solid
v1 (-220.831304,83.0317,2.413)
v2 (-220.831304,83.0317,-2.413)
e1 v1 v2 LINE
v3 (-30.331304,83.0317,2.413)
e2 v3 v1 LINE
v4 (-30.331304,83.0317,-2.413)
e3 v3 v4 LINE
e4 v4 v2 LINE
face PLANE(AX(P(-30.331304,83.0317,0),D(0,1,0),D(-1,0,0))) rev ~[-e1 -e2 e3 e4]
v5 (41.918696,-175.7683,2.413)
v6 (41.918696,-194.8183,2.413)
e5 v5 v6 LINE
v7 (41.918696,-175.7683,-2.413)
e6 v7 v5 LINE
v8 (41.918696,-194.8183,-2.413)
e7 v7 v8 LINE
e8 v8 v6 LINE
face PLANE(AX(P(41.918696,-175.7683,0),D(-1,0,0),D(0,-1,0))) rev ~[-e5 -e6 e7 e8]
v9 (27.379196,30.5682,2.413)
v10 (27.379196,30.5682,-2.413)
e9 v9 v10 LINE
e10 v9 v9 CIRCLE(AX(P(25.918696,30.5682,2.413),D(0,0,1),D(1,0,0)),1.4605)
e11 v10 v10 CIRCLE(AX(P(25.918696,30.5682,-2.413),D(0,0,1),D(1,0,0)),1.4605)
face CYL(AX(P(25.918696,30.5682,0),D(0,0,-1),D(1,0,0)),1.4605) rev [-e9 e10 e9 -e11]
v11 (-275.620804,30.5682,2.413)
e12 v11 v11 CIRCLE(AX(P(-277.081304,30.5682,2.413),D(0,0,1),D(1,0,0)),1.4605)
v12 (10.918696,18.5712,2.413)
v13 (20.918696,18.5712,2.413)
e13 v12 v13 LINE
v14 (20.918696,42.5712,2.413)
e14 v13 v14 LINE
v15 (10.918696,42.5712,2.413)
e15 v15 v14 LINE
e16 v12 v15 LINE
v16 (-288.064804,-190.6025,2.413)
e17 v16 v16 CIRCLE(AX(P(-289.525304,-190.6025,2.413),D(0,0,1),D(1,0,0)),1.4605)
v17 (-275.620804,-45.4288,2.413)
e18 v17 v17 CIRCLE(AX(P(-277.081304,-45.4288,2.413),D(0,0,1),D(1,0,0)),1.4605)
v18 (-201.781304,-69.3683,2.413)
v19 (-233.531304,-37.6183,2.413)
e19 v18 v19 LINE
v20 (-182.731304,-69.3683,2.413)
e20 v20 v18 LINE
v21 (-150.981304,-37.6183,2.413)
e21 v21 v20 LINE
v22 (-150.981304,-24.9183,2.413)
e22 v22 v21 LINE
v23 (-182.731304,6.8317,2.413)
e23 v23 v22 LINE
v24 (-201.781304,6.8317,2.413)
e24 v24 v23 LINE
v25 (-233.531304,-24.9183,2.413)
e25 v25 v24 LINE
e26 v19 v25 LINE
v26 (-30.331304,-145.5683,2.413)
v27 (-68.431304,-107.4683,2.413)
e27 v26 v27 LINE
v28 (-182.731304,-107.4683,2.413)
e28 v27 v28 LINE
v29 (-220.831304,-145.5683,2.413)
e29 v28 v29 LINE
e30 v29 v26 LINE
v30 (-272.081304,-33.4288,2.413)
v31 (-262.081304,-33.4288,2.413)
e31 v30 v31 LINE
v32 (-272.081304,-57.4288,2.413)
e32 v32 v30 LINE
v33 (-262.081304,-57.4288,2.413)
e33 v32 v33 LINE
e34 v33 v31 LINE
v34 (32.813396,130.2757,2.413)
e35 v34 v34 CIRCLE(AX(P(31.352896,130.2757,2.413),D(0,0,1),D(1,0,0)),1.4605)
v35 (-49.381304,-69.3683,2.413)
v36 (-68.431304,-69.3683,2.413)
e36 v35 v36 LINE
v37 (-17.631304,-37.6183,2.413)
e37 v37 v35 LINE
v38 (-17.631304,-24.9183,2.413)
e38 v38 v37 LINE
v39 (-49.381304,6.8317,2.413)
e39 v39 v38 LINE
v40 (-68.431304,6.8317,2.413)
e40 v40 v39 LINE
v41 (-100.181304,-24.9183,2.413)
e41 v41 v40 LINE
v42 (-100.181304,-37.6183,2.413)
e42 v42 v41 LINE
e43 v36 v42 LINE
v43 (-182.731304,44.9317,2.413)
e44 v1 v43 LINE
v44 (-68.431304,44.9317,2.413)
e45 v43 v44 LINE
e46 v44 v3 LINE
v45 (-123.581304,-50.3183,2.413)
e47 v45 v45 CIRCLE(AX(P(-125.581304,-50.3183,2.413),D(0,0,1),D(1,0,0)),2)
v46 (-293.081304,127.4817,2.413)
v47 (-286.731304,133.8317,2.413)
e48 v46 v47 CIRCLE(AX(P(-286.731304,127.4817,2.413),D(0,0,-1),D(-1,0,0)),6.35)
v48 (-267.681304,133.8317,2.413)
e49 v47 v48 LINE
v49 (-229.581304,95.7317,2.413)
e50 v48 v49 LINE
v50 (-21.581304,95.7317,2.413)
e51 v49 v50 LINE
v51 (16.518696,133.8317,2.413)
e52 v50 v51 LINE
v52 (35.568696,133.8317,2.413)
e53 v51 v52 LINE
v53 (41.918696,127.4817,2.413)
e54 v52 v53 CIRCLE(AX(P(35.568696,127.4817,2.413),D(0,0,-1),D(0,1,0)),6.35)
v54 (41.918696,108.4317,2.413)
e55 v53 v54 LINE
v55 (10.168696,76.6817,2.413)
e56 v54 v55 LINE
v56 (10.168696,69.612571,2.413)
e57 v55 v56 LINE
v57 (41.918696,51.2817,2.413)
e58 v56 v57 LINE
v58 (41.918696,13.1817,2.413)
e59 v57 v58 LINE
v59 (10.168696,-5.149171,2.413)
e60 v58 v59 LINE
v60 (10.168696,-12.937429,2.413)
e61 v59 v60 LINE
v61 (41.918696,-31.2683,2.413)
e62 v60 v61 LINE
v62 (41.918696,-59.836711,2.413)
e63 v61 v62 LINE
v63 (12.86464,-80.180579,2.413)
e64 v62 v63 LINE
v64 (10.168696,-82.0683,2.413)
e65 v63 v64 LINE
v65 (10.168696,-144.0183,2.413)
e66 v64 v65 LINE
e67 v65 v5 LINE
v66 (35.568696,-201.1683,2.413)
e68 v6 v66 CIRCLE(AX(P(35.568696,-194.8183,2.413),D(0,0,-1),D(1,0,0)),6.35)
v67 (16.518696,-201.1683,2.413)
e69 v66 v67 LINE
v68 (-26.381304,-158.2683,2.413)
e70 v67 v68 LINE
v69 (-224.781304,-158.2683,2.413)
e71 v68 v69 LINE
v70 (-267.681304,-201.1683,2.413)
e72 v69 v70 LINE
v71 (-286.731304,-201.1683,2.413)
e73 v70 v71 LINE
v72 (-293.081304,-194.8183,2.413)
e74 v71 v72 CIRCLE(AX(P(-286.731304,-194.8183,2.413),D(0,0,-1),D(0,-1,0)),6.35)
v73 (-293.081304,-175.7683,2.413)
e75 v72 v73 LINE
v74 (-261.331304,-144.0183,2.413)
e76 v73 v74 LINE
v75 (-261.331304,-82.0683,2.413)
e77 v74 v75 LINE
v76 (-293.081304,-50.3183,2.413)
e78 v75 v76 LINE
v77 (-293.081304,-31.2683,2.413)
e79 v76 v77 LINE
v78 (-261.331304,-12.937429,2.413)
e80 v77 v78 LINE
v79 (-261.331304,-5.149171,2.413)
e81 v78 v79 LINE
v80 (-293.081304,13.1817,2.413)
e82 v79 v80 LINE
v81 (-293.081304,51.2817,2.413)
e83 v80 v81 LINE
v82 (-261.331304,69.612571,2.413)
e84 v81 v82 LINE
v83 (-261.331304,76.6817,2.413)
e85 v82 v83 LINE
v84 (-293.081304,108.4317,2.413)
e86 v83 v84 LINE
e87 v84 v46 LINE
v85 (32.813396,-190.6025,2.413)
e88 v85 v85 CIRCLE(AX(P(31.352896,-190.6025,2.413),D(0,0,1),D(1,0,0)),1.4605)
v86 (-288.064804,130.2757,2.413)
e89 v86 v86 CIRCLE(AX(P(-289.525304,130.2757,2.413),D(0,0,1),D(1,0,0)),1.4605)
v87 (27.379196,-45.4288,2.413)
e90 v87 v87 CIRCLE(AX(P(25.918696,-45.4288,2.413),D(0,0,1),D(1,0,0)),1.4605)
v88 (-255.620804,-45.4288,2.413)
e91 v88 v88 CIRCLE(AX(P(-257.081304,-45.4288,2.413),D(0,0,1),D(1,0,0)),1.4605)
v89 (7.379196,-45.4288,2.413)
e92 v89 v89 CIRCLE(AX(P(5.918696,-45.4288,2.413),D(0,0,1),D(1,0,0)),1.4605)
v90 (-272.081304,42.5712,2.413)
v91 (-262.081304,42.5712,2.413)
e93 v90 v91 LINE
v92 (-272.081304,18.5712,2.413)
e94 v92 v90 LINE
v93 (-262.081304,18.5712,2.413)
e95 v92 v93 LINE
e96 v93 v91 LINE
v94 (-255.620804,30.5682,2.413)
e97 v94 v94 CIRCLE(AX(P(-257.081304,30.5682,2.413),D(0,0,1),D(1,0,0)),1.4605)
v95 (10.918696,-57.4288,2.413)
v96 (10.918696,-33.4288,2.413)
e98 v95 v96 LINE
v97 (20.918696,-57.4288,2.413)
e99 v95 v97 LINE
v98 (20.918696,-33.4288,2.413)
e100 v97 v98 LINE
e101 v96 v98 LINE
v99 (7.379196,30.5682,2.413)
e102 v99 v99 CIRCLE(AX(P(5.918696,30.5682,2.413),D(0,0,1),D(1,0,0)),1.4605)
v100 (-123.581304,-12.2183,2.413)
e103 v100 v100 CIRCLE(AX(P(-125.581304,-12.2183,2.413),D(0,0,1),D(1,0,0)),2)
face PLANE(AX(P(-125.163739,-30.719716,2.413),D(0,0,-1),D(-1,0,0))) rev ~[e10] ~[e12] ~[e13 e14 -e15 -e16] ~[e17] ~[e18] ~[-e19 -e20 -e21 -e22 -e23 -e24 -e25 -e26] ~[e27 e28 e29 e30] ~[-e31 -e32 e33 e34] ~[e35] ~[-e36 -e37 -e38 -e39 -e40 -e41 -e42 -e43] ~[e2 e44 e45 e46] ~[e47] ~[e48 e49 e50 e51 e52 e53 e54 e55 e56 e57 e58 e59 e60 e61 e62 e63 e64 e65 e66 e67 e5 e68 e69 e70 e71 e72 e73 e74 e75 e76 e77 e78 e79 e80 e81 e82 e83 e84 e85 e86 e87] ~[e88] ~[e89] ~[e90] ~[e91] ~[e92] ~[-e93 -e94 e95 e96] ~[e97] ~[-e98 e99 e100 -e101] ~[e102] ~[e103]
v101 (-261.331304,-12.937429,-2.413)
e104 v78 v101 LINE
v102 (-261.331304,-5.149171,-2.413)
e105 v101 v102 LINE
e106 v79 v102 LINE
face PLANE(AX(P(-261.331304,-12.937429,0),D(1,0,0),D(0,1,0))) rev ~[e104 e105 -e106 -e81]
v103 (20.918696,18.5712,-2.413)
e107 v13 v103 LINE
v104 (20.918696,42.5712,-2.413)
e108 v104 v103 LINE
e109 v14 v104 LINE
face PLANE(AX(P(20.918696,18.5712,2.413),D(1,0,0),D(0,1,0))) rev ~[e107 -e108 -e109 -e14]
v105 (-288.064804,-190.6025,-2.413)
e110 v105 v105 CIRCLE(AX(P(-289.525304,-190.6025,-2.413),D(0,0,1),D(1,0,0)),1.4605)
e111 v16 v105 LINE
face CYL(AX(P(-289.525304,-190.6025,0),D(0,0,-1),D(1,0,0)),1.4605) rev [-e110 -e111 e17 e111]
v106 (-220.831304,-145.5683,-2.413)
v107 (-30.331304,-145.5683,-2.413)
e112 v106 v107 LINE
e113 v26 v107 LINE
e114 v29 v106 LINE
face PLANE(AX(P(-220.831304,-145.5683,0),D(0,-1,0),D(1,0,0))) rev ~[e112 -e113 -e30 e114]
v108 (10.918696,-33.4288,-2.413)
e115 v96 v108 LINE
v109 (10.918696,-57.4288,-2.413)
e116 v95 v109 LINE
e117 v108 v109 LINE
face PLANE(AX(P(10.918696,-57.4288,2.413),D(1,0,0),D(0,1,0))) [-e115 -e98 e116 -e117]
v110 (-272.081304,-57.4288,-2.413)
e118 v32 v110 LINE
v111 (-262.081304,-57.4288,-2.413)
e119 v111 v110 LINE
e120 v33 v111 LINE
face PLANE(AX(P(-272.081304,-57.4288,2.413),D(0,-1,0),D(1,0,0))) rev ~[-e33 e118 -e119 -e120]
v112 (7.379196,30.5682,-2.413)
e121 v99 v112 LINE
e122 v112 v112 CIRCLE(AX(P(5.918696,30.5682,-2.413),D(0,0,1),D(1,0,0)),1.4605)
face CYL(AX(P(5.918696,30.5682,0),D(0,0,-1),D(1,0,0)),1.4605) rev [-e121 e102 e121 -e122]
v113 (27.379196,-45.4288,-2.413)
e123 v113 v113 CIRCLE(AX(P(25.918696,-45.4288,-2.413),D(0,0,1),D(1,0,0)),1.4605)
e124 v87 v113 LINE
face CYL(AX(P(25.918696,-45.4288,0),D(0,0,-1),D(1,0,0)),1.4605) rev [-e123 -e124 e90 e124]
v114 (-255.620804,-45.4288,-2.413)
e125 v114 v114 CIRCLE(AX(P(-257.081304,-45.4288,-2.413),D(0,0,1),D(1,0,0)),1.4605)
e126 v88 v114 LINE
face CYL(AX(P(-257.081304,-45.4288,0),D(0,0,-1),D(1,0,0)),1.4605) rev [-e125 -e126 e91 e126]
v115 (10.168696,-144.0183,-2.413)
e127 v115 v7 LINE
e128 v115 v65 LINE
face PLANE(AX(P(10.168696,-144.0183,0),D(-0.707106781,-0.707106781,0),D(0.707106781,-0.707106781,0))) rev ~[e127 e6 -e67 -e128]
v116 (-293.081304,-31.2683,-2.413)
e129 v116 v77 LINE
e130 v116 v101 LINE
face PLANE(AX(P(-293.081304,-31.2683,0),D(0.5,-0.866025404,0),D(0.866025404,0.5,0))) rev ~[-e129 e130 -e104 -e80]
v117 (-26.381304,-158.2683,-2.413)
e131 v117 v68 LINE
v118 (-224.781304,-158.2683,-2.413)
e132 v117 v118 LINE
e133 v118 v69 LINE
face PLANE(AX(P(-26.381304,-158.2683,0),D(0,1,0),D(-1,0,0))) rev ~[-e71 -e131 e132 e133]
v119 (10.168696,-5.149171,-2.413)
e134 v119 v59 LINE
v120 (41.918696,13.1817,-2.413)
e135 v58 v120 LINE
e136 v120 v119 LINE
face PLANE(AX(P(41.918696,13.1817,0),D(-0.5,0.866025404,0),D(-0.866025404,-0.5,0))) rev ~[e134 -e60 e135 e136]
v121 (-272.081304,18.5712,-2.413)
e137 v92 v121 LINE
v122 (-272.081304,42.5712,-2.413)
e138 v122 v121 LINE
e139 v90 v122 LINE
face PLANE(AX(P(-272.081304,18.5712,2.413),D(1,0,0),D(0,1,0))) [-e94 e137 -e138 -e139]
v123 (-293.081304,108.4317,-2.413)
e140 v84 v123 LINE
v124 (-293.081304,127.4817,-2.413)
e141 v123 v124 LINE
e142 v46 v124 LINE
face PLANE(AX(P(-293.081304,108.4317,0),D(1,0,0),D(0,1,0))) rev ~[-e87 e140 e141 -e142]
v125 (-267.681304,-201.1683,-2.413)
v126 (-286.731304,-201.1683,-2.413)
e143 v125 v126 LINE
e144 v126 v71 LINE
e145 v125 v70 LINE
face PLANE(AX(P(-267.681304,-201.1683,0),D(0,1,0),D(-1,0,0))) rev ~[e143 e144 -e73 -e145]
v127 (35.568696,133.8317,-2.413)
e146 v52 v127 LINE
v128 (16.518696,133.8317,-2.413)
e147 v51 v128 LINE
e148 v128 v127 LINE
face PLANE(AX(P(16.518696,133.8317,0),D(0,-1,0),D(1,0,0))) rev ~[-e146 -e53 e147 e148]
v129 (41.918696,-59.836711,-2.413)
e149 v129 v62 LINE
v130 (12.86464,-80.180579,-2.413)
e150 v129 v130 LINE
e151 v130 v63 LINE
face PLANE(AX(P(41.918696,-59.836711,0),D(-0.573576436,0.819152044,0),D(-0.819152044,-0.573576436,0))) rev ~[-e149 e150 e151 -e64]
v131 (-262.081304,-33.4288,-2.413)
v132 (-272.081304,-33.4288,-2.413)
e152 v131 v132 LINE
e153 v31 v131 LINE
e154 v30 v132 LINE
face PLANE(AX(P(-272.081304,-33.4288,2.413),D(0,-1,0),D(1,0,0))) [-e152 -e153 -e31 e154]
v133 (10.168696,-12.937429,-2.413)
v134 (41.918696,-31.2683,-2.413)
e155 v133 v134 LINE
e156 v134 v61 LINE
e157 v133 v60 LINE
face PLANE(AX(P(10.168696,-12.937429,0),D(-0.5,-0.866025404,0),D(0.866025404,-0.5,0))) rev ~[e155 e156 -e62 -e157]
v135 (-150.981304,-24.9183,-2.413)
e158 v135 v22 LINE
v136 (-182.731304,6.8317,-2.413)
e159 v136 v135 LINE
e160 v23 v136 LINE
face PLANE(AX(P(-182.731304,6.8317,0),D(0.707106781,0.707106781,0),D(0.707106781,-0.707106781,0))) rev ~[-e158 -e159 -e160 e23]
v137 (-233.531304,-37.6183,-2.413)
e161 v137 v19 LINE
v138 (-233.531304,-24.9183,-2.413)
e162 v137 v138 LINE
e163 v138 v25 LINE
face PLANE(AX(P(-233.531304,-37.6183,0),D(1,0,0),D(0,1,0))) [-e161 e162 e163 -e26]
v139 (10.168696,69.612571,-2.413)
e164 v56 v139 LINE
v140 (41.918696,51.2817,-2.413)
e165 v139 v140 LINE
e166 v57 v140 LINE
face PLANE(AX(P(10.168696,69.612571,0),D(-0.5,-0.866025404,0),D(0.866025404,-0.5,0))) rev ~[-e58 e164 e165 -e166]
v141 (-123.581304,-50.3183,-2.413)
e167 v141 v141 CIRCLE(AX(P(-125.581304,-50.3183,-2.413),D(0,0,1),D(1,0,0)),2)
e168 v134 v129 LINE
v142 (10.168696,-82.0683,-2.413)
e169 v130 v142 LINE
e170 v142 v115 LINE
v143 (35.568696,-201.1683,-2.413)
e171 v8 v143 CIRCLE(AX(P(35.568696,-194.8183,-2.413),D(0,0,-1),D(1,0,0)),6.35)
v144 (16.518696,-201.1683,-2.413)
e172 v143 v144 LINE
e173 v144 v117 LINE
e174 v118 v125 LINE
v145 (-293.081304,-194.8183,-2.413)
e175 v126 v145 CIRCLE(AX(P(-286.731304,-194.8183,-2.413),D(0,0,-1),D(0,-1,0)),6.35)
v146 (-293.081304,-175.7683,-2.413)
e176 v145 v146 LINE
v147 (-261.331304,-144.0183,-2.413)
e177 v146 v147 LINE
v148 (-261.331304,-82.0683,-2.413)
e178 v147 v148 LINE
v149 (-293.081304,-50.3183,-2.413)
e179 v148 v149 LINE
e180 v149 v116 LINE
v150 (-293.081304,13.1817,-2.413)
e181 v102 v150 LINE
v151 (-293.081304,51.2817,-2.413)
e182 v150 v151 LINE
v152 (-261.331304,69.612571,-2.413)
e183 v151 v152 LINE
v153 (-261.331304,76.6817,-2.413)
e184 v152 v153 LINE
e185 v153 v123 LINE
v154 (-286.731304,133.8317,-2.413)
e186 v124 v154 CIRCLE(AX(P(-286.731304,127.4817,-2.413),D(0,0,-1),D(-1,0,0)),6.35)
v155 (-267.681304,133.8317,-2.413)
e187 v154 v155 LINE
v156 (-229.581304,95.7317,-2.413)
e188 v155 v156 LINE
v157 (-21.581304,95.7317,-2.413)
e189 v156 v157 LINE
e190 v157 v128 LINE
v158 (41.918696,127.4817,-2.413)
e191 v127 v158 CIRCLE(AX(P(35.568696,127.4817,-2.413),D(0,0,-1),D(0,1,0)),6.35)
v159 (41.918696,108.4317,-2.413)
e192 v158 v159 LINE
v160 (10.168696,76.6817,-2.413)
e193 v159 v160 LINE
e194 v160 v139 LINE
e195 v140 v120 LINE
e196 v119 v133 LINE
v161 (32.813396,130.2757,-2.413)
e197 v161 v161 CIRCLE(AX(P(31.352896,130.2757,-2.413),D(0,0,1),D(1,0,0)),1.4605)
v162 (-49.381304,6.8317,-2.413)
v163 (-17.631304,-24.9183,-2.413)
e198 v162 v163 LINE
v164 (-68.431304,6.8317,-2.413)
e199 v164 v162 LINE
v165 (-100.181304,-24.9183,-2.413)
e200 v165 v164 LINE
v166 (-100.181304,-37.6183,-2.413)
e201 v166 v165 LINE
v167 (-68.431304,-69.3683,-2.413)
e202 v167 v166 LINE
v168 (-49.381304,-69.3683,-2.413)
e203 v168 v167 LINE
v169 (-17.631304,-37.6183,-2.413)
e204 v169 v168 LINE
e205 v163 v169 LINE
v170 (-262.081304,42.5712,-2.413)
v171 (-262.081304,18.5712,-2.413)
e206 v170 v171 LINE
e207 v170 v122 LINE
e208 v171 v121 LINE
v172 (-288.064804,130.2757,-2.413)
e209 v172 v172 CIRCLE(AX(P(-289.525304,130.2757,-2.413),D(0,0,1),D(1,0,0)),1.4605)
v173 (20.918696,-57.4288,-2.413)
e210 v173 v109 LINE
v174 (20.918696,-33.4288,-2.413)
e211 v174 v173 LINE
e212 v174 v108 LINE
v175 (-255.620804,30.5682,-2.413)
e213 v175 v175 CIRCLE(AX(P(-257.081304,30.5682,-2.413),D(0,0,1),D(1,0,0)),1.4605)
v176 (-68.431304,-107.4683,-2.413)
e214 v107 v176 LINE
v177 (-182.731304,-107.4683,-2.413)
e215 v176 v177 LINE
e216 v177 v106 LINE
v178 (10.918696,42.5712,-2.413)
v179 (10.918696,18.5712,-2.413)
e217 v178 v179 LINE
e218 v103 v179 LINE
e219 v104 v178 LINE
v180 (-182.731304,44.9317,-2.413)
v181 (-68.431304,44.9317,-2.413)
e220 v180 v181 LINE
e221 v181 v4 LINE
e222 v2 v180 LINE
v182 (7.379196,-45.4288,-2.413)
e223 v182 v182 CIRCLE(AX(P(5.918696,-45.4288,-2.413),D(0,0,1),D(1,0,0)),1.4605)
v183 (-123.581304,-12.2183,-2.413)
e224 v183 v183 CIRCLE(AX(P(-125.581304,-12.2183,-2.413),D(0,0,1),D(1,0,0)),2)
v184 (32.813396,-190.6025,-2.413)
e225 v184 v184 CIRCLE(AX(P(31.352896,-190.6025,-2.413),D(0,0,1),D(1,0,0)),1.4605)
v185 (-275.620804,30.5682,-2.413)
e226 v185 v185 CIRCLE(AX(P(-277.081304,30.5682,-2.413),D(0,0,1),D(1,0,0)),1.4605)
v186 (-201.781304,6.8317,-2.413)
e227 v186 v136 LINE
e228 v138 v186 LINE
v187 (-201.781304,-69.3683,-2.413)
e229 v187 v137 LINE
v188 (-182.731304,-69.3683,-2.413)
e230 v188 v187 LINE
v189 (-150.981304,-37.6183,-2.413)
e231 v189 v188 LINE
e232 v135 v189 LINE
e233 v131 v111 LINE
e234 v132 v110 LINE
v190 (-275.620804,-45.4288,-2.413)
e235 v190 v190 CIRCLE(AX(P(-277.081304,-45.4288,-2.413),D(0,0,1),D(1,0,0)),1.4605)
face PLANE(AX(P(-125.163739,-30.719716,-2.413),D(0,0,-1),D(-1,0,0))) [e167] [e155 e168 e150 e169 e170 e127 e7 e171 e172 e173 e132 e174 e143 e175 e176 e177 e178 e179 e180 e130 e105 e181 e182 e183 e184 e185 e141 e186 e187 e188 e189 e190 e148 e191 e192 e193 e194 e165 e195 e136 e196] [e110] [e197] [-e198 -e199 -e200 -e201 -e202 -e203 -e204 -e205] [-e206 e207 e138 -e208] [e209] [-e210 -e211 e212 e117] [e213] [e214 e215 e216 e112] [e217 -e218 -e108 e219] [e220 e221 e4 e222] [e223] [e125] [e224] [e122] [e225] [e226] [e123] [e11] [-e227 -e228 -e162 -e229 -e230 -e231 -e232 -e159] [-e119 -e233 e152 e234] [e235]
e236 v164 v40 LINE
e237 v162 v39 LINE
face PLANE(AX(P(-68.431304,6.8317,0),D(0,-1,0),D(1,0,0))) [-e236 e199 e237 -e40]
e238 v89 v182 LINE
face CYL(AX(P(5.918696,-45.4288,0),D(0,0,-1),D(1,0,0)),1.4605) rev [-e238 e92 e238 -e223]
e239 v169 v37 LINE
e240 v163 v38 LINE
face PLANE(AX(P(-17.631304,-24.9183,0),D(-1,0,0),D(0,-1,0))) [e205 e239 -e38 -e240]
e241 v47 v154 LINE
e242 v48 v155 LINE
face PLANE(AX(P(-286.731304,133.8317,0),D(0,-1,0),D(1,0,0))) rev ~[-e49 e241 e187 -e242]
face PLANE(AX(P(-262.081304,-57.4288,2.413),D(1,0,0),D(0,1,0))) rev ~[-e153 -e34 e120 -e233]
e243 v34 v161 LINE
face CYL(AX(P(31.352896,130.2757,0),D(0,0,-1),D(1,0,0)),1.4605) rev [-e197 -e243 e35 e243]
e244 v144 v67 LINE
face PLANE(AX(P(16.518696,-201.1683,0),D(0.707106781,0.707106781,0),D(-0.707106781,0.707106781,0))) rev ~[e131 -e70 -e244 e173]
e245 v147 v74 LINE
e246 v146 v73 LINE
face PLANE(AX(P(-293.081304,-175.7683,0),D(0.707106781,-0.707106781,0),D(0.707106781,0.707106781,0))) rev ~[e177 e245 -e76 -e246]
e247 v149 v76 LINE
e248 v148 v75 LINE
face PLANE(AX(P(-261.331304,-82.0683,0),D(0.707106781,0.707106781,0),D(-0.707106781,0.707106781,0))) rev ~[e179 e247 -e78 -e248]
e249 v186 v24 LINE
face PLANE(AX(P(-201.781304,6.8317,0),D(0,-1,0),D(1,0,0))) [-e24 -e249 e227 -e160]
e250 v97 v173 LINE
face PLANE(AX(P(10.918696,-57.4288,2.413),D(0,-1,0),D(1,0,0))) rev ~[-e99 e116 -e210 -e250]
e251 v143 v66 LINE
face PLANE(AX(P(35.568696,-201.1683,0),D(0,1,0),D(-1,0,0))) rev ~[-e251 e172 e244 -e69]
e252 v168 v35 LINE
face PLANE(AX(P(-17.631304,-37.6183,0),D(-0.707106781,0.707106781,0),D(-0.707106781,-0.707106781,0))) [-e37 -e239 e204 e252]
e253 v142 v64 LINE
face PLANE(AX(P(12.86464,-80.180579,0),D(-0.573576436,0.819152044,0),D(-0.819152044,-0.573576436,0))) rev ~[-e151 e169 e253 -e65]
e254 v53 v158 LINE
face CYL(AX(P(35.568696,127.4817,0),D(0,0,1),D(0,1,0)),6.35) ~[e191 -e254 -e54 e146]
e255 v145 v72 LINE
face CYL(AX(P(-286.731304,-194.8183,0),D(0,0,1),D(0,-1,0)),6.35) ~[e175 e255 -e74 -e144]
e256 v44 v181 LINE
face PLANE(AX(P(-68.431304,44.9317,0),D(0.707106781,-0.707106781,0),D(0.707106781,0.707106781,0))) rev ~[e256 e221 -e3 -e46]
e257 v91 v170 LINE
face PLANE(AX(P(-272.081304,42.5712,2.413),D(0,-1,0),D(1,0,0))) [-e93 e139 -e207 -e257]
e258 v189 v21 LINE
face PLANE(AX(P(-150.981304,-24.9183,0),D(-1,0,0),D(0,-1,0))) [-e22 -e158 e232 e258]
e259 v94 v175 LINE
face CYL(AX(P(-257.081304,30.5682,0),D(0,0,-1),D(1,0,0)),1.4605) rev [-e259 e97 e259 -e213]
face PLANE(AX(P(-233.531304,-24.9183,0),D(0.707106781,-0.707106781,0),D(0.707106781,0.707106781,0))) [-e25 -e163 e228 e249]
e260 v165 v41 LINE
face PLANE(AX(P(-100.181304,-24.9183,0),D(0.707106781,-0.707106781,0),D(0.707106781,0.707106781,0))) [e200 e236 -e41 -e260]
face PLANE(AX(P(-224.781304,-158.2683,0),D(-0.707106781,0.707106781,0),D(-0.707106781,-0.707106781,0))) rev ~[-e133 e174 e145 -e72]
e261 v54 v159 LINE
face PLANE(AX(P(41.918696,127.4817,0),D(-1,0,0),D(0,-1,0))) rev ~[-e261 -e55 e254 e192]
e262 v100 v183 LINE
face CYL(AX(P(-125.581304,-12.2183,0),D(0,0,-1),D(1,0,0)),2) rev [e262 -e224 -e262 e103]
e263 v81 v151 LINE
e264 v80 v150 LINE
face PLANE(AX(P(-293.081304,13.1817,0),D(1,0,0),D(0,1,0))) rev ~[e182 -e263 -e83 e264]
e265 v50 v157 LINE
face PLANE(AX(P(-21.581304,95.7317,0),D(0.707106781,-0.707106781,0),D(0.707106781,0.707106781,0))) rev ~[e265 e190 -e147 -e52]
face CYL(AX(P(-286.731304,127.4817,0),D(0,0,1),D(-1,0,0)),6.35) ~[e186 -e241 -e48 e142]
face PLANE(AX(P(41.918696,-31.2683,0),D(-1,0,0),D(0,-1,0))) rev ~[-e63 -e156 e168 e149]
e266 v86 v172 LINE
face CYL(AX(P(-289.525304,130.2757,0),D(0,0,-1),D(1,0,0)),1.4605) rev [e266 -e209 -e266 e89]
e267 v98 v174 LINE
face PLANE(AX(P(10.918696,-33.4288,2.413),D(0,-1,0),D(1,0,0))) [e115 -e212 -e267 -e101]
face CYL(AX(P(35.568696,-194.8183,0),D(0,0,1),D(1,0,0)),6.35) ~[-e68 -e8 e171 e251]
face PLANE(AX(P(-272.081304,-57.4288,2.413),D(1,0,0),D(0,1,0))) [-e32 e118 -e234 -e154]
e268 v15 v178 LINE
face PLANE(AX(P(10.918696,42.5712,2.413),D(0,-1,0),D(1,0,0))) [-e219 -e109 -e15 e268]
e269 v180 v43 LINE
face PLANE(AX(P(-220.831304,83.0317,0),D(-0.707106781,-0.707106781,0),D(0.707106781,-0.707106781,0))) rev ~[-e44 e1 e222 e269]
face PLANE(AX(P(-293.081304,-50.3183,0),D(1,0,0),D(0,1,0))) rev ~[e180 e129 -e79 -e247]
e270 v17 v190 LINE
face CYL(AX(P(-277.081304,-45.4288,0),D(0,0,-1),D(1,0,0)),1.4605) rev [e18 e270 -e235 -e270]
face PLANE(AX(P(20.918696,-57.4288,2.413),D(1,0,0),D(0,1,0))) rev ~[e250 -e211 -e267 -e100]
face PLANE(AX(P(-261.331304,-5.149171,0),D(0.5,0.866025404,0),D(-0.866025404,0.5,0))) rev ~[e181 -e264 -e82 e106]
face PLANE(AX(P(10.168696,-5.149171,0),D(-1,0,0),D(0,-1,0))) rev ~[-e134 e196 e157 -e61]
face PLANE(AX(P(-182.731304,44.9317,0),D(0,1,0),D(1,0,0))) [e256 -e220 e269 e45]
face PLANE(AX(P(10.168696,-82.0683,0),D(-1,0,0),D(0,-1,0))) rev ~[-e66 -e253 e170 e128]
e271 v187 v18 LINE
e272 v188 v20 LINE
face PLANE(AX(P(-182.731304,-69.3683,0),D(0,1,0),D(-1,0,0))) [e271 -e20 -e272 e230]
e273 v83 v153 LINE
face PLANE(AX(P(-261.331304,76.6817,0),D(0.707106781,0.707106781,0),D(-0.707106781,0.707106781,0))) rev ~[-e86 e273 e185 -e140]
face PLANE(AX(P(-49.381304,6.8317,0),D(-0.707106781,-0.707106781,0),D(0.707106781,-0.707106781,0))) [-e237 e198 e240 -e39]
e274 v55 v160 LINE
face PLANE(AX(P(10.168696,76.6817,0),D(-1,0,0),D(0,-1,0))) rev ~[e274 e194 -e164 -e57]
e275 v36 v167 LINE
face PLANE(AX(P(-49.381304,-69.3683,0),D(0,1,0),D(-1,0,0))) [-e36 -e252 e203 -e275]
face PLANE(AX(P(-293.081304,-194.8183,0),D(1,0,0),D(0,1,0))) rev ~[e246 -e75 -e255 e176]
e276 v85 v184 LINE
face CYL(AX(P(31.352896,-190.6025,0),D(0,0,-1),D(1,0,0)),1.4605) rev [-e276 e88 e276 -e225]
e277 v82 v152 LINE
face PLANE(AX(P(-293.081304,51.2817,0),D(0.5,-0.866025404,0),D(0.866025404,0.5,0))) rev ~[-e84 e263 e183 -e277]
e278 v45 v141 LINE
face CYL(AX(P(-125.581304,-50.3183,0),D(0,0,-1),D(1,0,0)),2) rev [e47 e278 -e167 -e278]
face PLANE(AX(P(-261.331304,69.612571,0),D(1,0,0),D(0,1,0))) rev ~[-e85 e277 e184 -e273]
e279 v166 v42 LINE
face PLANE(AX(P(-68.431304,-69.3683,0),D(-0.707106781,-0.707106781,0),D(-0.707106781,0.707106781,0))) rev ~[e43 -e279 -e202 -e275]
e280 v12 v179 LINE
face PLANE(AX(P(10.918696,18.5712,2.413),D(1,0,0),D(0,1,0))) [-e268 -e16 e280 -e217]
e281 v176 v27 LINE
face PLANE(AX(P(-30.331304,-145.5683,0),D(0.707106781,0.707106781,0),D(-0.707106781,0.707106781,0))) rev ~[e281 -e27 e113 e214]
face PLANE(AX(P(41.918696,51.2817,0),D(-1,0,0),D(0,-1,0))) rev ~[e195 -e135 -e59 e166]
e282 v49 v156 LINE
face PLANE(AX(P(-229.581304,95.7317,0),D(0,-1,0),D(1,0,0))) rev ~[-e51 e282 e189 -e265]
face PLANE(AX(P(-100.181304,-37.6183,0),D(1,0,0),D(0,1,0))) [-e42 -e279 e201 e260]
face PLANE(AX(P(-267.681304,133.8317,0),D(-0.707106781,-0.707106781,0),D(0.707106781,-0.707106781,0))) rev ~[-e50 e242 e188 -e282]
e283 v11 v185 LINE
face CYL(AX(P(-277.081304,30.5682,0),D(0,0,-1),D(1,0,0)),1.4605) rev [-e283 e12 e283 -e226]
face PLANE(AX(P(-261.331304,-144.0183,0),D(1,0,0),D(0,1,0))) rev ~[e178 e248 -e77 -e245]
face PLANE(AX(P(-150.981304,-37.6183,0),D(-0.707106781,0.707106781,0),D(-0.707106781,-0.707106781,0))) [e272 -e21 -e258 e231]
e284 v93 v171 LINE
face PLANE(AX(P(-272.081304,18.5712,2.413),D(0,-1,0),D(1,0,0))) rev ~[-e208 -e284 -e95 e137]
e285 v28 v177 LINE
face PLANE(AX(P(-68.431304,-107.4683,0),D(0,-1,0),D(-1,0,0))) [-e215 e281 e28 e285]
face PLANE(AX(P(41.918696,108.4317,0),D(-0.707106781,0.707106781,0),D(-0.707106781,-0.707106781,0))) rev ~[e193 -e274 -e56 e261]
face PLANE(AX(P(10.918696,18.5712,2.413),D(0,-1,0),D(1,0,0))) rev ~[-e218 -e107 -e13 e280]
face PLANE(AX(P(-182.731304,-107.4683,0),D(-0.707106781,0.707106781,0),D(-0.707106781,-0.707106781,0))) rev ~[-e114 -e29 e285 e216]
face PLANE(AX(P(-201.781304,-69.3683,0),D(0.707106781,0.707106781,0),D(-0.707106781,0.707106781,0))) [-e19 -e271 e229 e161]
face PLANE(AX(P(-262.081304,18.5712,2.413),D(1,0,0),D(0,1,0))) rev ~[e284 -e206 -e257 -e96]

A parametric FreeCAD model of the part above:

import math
import FreeCAD as App
import Part
import Sketcher

V = App.Vector
Q = App.Units.Quantity

doc = App.newDocument("Part")
body = doc.addObject("PartDesign::Body", "Body")

sketch1 = body.newObject("Sketcher::SketchObject", "Sketch")
sketch1.AttachmentSupport = (doc.getObject("XY_Plane"), [""])
sketch1.MapMode = "FlatFace"
sketch1.addGeometry([
    Part.LineSegment(V(-261.331304, -12.937429, 0), V(-293.081304, -31.2683, 0)),
    Part.LineSegment(V(-293.081304, -31.2683, 0), V(-293.081304, -50.3183, 0)),
    Part.LineSegment(V(-293.081304, -50.3183, 0), V(-261.331304, -82.0683, 0)),
    Part.LineSegment(V(-261.331304, -82.0683, 0), V(-261.331304, -144.0183, 0)),
    Part.LineSegment(V(-261.331304, -144.0183, 0), V(-293.081304, -175.7683, 0)),
    Part.LineSegment(V(-293.081304, -175.7683, 0), V(-293.081304, -194.8183, 0)),
    Part.ArcOfCircle(Part.Circle(V(-286.731304, -194.8183, 0), V(0, 0, 1), 6.35), math.radians(180), math.radians(270)),
    Part.LineSegment(V(-286.731304, -201.1683, 0), V(-267.681304, -201.1683, 0)),
    Part.LineSegment(V(-267.681304, -201.1683, 0), V(-224.781304, -158.2683, 0)),
    Part.LineSegment(V(-224.781304, -158.2683, 0), V(-26.381304, -158.2683, 0)),
    Part.LineSegment(V(-26.381304, -158.2683, 0), V(16.518696, -201.1683, 0)),
    Part.LineSegment(V(16.518696, -201.1683, 0), V(35.568696, -201.1683, 0)),
    Part.ArcOfCircle(Part.Circle(V(35.568696, -194.8183, 0), V(0, 0, 1), 6.35), math.radians(-90), math.radians(0)),
    Part.LineSegment(V(41.918696, -194.8183, 0), V(41.918696, -175.7683, 0)),
    Part.LineSegment(V(41.918696, -175.7683, 0), V(10.168696, -144.0183, 0)),
    Part.LineSegment(V(10.168696, -144.0183, 0), V(10.168696, -82.0683, 0)),
    Part.LineSegment(V(10.168696, -82.0683, 0), V(12.86464, -80.180579, 0)),
    Part.LineSegment(V(12.86464, -80.180579, 0), V(41.918696, -59.836711, 0)),
    Part.LineSegment(V(41.918696, -59.836711, 0), V(41.918696, -31.2683, 0)),
    Part.LineSegment(V(41.918696, -31.2683, 0), V(10.168696, -12.937429, 0)),
    Part.LineSegment(V(10.168696, -12.937429, 0), V(10.168696, -5.149171, 0)),
    Part.LineSegment(V(10.168696, -5.149171, 0), V(41.918696, 13.1817, 0)),
    Part.LineSegment(V(41.918696, 13.1817, 0), V(41.918696, 51.2817, 0)),
    Part.LineSegment(V(41.918696, 51.2817, 0), V(10.168696, 69.612571, 0)),
    Part.LineSegment(V(10.168696, 69.612571, 0), V(10.168696, 76.6817, 0)),
    Part.LineSegment(V(10.168696, 76.6817, 0), V(41.918696, 108.4317, 0)),
    Part.LineSegment(V(41.918696, 108.4317, 0), V(41.918696, 127.4817, 0)),
    Part.ArcOfCircle(Part.Circle(V(35.568696, 127.4817, 0), V(0, 0, 1), 6.35), math.radians(0), math.radians(90)),
    Part.LineSegment(V(35.568696, 133.8317, 0), V(16.518696, 133.8317, 0)),
    Part.LineSegment(V(16.518696, 133.8317, 0), V(-21.581304, 95.7317, 0)),
    Part.LineSegment(V(-21.581304, 95.7317, 0), V(-229.581304, 95.7317, 0)),
    Part.LineSegment(V(-229.581304, 95.7317, 0), V(-267.681304, 133.8317, 0)),
    Part.LineSegment(V(-267.681304, 133.8317, 0), V(-286.731304, 133.8317, 0)),
    Part.ArcOfCircle(Part.Circle(V(-286.731304, 127.4817, 0), V(0, 0, 1), 6.35), math.radians(90), math.radians(180)),
    Part.LineSegment(V(-293.081304, 127.4817, 0), V(-293.081304, 108.4317, 0)),
    Part.LineSegment(V(-293.081304, 108.4317, 0), V(-261.331304, 76.6817, 0)),
    Part.LineSegment(V(-261.331304, 76.6817, 0), V(-261.331304, 69.612571, 0)),
    Part.LineSegment(V(-261.331304, 69.612571, 0), V(-293.081304, 51.2817, 0)),
    Part.LineSegment(V(-293.081304, 51.2817, 0), V(-293.081304, 13.1817, 0)),
    Part.LineSegment(V(-293.081304, 13.1817, 0), V(-261.331304, -5.149171, 0)),
    Part.LineSegment(V(-261.331304, -5.149171, 0), V(-261.331304, -12.937429, 0)),
    Part.Circle(V(31.352896, -190.6025, 0), V(0, 0, 1), 1.4605),
    Part.LineSegment(V(-30.331304, -145.5683, 0), V(-220.831304, -145.5683, 0)),
    Part.LineSegment(V(-220.831304, -145.5683, 0), V(-182.731304, -107.4683, 0)),
    Part.LineSegment(V(-182.731304, -107.4683, 0), V(-68.431304, -107.4683, 0)),
    Part.LineSegment(V(-68.431304, -107.4683, 0), V(-30.331304, -145.5683, 0)),
    Part.Circle(V(25.918696, -45.4288, 0), V(0, 0, 1), 1.4605),
    Part.Circle(V(5.918696, -45.4288, 0), V(0, 0, 1), 1.4605),
    Part.LineSegment(V(-100.181304, -37.6183, 0), V(-100.181304, -24.9183, 0)),
    Part.LineSegment(V(-100.181304, -24.9183, 0), V(-68.431304, 6.8317, 0)),
    Part.LineSegment(V(-68.431304, 6.8317, 0), V(-49.381304, 6.8317, 0)),
    Part.LineSegment(V(-49.381304, 6.8317, 0), V(-17.631304, -24.9183, 0)),
    Part.LineSegment(V(-17.631304, -24.9183, 0), V(-17.631304, -37.6183, 0)),
    Part.LineSegment(V(-17.631304, -37.6183, 0), V(-49.381304, -69.3683, 0)),
    Part.LineSegment(V(-49.381304, -69.3683, 0), V(-68.431304, -69.3683, 0)),
    Part.LineSegment(V(-68.431304, -69.3683, 0), V(-100.181304, -37.6183, 0)),
    Part.Circle(V(-125.581304, -50.3183, 0), V(0, 0, 1), 2),
    Part.Circle(V(-289.525304, -190.6025, 0), V(0, 0, 1), 1.4605),
    Part.LineSegment(V(-201.781304, -69.3683, 0), V(-233.531304, -37.6183, 0)),
    Part.LineSegment(V(-233.531304, -37.6183, 0), V(-233.531304, -24.9183, 0)),
    Part.LineSegment(V(-233.531304, -24.9183, 0), V(-201.781304, 6.8317, 0)),
    Part.LineSegment(V(-201.781304, 6.8317, 0), V(-182.731304, 6.8317, 0)),
    Part.LineSegment(V(-182.731304, 6.8317, 0), V(-150.981304, -24.9183, 0)),
    Part.LineSegment(V(-150.981304, -24.9183, 0), V(-150.981304, -37.6183, 0)),
    Part.LineSegment(V(-150.981304, -37.6183, 0), V(-182.731304, -69.3683, 0)),
    Part.LineSegment(V(-182.731304, -69.3683, 0), V(-201.781304, -69.3683, 0)),
    Part.Circle(V(-257.081304, -45.4288, 0), V(0, 0, 1), 1.4605),
    Part.Circle(V(-277.081304, -45.4288, 0), V(0, 0, 1), 1.4605),
    Part.Circle(V(25.918696, 30.5682, 0), V(0, 0, 1), 1.4605),
    Part.Circle(V(5.918696, 30.5682, 0), V(0, 0, 1), 1.4605),
    Part.Circle(V(-125.581304, -12.2183, 0), V(0, 0, 1), 2),
    Part.Circle(V(31.352896, 130.2757, 0), V(0, 0, 1), 1.4605),
    Part.LineSegment(V(-220.831304, 83.0317, 0), V(-30.331304, 83.0317, 0)),
    Part.LineSegment(V(-30.331304, 83.0317, 0), V(-68.431304, 44.9317, 0)),
    Part.LineSegment(V(-68.431304, 44.9317, 0), V(-182.731304, 44.9317, 0)),
    Part.LineSegment(V(-182.731304, 44.9317, 0), V(-220.831304, 83.0317, 0)),
    Part.Circle(V(-257.081304, 30.5682, 0), V(0, 0, 1), 1.4605),
    Part.Circle(V(-277.081304, 30.5682, 0), V(0, 0, 1), 1.4605),
    Part.Circle(V(-289.525304, 130.2757, 0), V(0, 0, 1), 1.4605),
], False)
sketch1.addConstraint([
    Sketcher.Constraint("Coincident", 0, 2, 1, 1),
    Sketcher.Constraint("Coincident", 1, 2, 2, 1),
    Sketcher.Constraint("Coincident", 2, 2, 3, 1),
    Sketcher.Constraint("Coincident", 3, 2, 4, 1),
    Sketcher.Constraint("Coincident", 4, 2, 5, 1),
    Sketcher.Constraint("Tangent", 5, 2, 6, 1),
    Sketcher.Constraint("Tangent", 6, 2, 7, 1),
    Sketcher.Constraint("Coincident", 7, 2, 8, 1),
    Sketcher.Constraint("Coincident", 8, 2, 9, 1),
    Sketcher.Constraint("Coincident", 9, 2, 10, 1),
    Sketcher.Constraint("Coincident", 10, 2, 11, 1),
    Sketcher.Constraint("Tangent", 11, 2, 12, 1),
    Sketcher.Constraint("Tangent", 12, 2, 13, 1),
    Sketcher.Constraint("Coincident", 13, 2, 14, 1),
    Sketcher.Constraint("Coincident", 14, 2, 15, 1),
    Sketcher.Constraint("Coincident", 15, 2, 16, 1),
    Sketcher.Constraint("Coincident", 16, 2, 17, 1),
    Sketcher.Constraint("Coincident", 17, 2, 18, 1),
    Sketcher.Constraint("Coincident", 18, 2, 19, 1),
    Sketcher.Constraint("Coincident", 19, 2, 20, 1),
    Sketcher.Constraint("Coincident", 20, 2, 21, 1),
    Sketcher.Constraint("Coincident", 21, 2, 22, 1),
    Sketcher.Constraint("Coincident", 22, 2, 23, 1),
    Sketcher.Constraint("Coincident", 23, 2, 24, 1),
    Sketcher.Constraint("Coincident", 24, 2, 25, 1),
    Sketcher.Constraint("Coincident", 25, 2, 26, 1),
    Sketcher.Constraint("Tangent", 26, 2, 27, 1),
    Sketcher.Constraint("Tangent", 27, 2, 28, 1),
    Sketcher.Constraint("Coincident", 28, 2, 29, 1),
    Sketcher.Constraint("Coincident", 29, 2, 30, 1),
    Sketcher.Constraint("Coincident", 30, 2, 31, 1),
    Sketcher.Constraint("Coincident", 31, 2, 32, 1),
    Sketcher.Constraint("Tangent", 32, 2, 33, 1),
    Sketcher.Constraint("Tangent", 33, 2, 34, 1),
    Sketcher.Constraint("Coincident", 34, 2, 35, 1),
    Sketcher.Constraint("Coincident", 35, 2, 36, 1),
    Sketcher.Constraint("Coincident", 36, 2, 37, 1),
    Sketcher.Constraint("Coincident", 37, 2, 38, 1),
    Sketcher.Constraint("Coincident", 38, 2, 39, 1),
    Sketcher.Constraint("Coincident", 39, 2, 40, 1),
    Sketcher.Constraint("Coincident", 40, 2, 0, 1),
    Sketcher.Constraint("Coincident", 42, 2, 43, 1),
    Sketcher.Constraint("Coincident", 43, 2, 44, 1),
    Sketcher.Constraint("Coincident", 44, 2, 45, 1),
    Sketcher.Constraint("Coincident", 45, 2, 42, 1),
    Sketcher.Constraint("Coincident", 48, 2, 49, 1),
    Sketcher.Constraint("Coincident", 49, 2, 50, 1),
    Sketcher.Constraint("Coincident", 50, 2, 51, 1),
    Sketcher.Constraint("Coincident", 51, 2, 52, 1),
    Sketcher.Constraint("Coincident", 52, 2, 53, 1),
    Sketcher.Constraint("Coincident", 53, 2, 54, 1),
    Sketcher.Constraint("Coincident", 54, 2, 55, 1),
    Sketcher.Constraint("Coincident", 55, 2, 48, 1),
    Sketcher.Constraint("Coincident", 58, 2, 59, 1),
    Sketcher.Constraint("Coincident", 59, 2, 60, 1),
    Sketcher.Constraint("Coincident", 60, 2, 61, 1),
    Sketcher.Constraint("Coincident", 61, 2, 62, 1),
    Sketcher.Constraint("Coincident", 62, 2, 63, 1),
    Sketcher.Constraint("Coincident", 63, 2, 64, 1),
    Sketcher.Constraint("Coincident", 64, 2, 65, 1),
    Sketcher.Constraint("Coincident", 65, 2, 58, 1),
    Sketcher.Constraint("Coincident", 72, 2, 73, 1),
    Sketcher.Constraint("Coincident", 73, 2, 74, 1),
    Sketcher.Constraint("Coincident", 74, 2, 75, 1),
    Sketcher.Constraint("Coincident", 75, 2, 72, 1),
    Sketcher.Constraint("Vertical", 1),
    Sketcher.Constraint("Vertical", 3),
    Sketcher.Constraint("Vertical", 5),
    Sketcher.Constraint("Horizontal", 7),
    Sketcher.Constraint("Horizontal", 9),
    Sketcher.Constraint("Horizontal", 11),
    Sketcher.Constraint("Vertical", 13),
    Sketcher.Constraint("Vertical", 15),
    Sketcher.Constraint("Vertical", 18),
    Sketcher.Constraint("Vertical", 20),
    Sketcher.Constraint("Vertical", 22),
    Sketcher.Constraint("Vertical", 24),
    Sketcher.Constraint("Vertical", 26),
    Sketcher.Constraint("Horizontal", 28),
    Sketcher.Constraint("Horizontal", 30),
    Sketcher.Constraint("Horizontal", 32),
    Sketcher.Constraint("Vertical", 34),
    Sketcher.Constraint("Vertical", 36),
    Sketcher.Constraint("Vertical", 38),
    Sketcher.Constraint("Vertical", 40),
    Sketcher.Constraint("Horizontal", 42),
    Sketcher.Constraint("Horizontal", 44),
    Sketcher.Constraint("Vertical", 48),
    Sketcher.Constraint("Horizontal", 50),
    Sketcher.Constraint("Vertical", 52),
    Sketcher.Constraint("Horizontal", 54),
    Sketcher.Constraint("Vertical", 59),
    Sketcher.Constraint("Horizontal", 61),
    Sketcher.Constraint("Vertical", 63),
    Sketcher.Constraint("Horizontal", 65),
    Sketcher.Constraint("Horizontal", 72),
    Sketcher.Constraint("Horizontal", 74),
    Sketcher.Constraint("Equal", 6, 12),
    Sketcher.Constraint("Equal", 12, 27),
    Sketcher.Constraint("Equal", 27, 33),
    Sketcher.Constraint("Equal", 41, 46),
    Sketcher.Constraint("Equal", 46, 47),
    Sketcher.Constraint("Equal", 47, 57),
    Sketcher.Constraint("Equal", 57, 66),
    Sketcher.Constraint("Equal", 66, 67),
    Sketcher.Constraint("Equal", 67, 68),
    Sketcher.Constraint("Equal", 68, 69),
    Sketcher.Constraint("Equal", 56, 70),
    Sketcher.Constraint("Equal", 69, 71),
    Sketcher.Constraint("Equal", 71, 76),
    Sketcher.Constraint("Equal", 76, 77),
    Sketcher.Constraint("Equal", 77, 78),
    Sketcher.Constraint("Perpendicular", 2, 4),
    Sketcher.Constraint("Parallel", 4, 8),
    Sketcher.Constraint("Perpendicular", 8, 10),
    Sketcher.Constraint("Parallel", 10, 14),
    Sketcher.Constraint("Parallel", 16, 17),
    Sketcher.Constraint("Parallel", 0, 21),
    Sketcher.Constraint("Parallel", 19, 23),
    Sketcher.Constraint("Perpendicular", 14, 25),
    Sketcher.Constraint("Parallel", 25, 29),
    Sketcher.Constraint("Perpendicular", 29, 31),
    Sketcher.Constraint("Parallel", 31, 35),
    Sketcher.Constraint("Parallel", 21, 37),
    Sketcher.Constraint("Parallel", 23, 39),
    Sketcher.Constraint("Perpendicular", 35, 43),
    Sketcher.Constraint("Perpendicular", 43, 45),
    Sketcher.Constraint("Perpendicular", 45, 49),
    Sketcher.Constraint("Perpendicular", 49, 51),
    Sketcher.Constraint("Perpendicular", 51, 53),
    Sketcher.Constraint("Perpendicular", 53, 55),
    Sketcher.Constraint("Parallel", 55, 58),
    Sketcher.Constraint("Perpendicular", 58, 60),
    Sketcher.Constraint("Perpendicular", 60, 62),
    Sketcher.Constraint("Perpendicular", 62, 64),
    Sketcher.Constraint("Parallel", 64, 73),
    Sketcher.Constraint("Perpendicular", 73, 75),
    Sketcher.Constraint("Horizontal", 6, 3, 12, 3),
    Sketcher.Constraint("Horizontal", 27, 3, 33, 3),
    Sketcher.Constraint("Horizontal", 46, 3, 47, 3),
    Sketcher.Constraint("Horizontal", 41, 3, 57, 3),
    Sketcher.Constraint("Horizontal", 47, 3, 66, 3),
    Sketcher.Constraint("Horizontal", 66, 3, 67, 3),
    Sketcher.Constraint("Horizontal", 68, 3, 69, 3),
    Sketcher.Constraint("Horizontal", 69, 3, 76, 3),
    Sketcher.Constraint("Horizontal", 76, 3, 77, 3),
    Sketcher.Constraint("Horizontal", 71, 3, 78, 3),
    Sketcher.Constraint("Horizontal", 56, 3, 1, 2),
    Sketcher.Constraint("Horizontal", 4, 2, 13, 2),
    Sketcher.Constraint("Horizontal", 3, 2, 14, 2),
    Sketcher.Constraint("Horizontal", 2, 2, 15, 2),
    Sketcher.Constraint("Horizontal", 0, 2, 18, 2),
    Sketcher.Constraint("Horizontal", 25, 2, 34, 2),
    Sketcher.Constraint("Horizontal", 24, 2, 35, 2),
    Sketcher.Constraint("Horizontal", 23, 2, 36, 2),
    Sketcher.Constraint("Horizontal", 22, 2, 37, 2),
    Sketcher.Constraint("Horizontal", 21, 2, 38, 2),
    Sketcher.Constraint("Horizontal", 20, 2, 39, 2),
    Sketcher.Constraint("Horizontal", 19, 2, 40, 2),
    Sketcher.Constraint("Horizontal", 48, 2, 51, 2),
    Sketcher.Constraint("Horizontal", 52, 2, 55, 2),
    Sketcher.Constraint("Horizontal", 55, 2, 58, 2),
    Sketcher.Constraint("Horizontal", 51, 2, 59, 2),
    Sketcher.Constraint("Horizontal", 50, 2, 60, 2),
    Sketcher.Constraint("Horizontal", 59, 2, 62, 2),
    Sketcher.Constraint("Horizontal", 58, 2, 63, 2),
    Sketcher.Constraint("Horizontal", 54, 2, 64, 2),
    Sketcher.Constraint("Vertical", 12, 3, 27, 3),
    Sketcher.Constraint("Vertical", 6, 3, 33, 3),
    Sketcher.Constraint("Vertical", 46, 3, 68, 3),
    Sketcher.Constraint("Vertical", 47, 3, 69, 3),
    Sketcher.Constraint("Vertical", 56, 3, 70, 3),
    Sketcher.Constraint("Vertical", 41, 3, 71, 3),
    Sketcher.Constraint("Vertical", 66, 3, 76, 3),
    Sketcher.Constraint("Vertical", 67, 3, 77, 3),
    Sketcher.Constraint("Vertical", 57, 3, 78, 3),
    Sketcher.Constraint("Vertical", 1, 2, 4, 2),
    Sketcher.Constraint("Vertical", 13, 2, 17, 2),
    Sketcher.Constraint("Vertical", 15, 2, 19, 2),
    Sketcher.Constraint("Vertical", 18, 2, 21, 2),
    Sketcher.Constraint("Vertical", 20, 2, 23, 2),
    Sketcher.Constraint("Vertical", 10, 2, 28, 2),
    Sketcher.Constraint("Vertical", 7, 2, 31, 2),
    Sketcher.Constraint("Vertical", 3, 2, 35, 2),
    Sketcher.Constraint("Vertical", 44, 2, 49, 2),
    Sketcher.Constraint("Vertical", 50, 2, 53, 2),
    Sketcher.Constraint("Vertical", 43, 2, 61, 2),
    Sketcher.Constraint("Vertical", 45, 2, 72, 2),
    Sketcher.Constraint("Vertical", 54, 2, 73, 2),
    Sketcher.Constraint("Vertical", 64, 2, 74, 2),
    Sketcher.Constraint("Equal", 7, 11),
    Sketcher.Constraint("Equal", 32, 50),
    Sketcher.Constraint("Equal", 54, 61),
    Sketcher.Constraint("Equal", 65, 1),
    Sketcher.Constraint("Equal", 1, 5),
    Sketcher.Constraint("Equal", 13, 26),
    Sketcher.Constraint("Equal", 31, 43),
    Sketcher.Constraint("Equal", 35, 49),
    Sketcher.Constraint("Radius", 6, Q("0.25 in")),
    Sketcher.Constraint("Diameter", 41, Q("0.115 in")),
    Sketcher.Constraint("DistanceX", 42, 2, 42, 1, Q("7.5 in")),
    Sketcher.Constraint("DistanceX", 44, 1, 44, 2, Q("4.5 in")),
    Sketcher.Constraint("DistanceY", 22, 1, 22, 2, Q("1.5 in")),
    Sketcher.Constraint("DistanceY", 48, 1, 48, 2, Q("0.5 in")),
    Sketcher.Constraint("Angle", 0, Q("-150 deg")),
    Sketcher.Constraint("Angle", 16, Q("35 deg")),
    Sketcher.Constraint("DistanceX", 7, 1, 7, 2, Q("0.75 in")),
    Sketcher.Constraint("Diameter", 56, 4.0),
    Sketcher.Constraint("DistanceX", 9, 1, 9, 2, 198.4),
    Sketcher.Constraint("DistanceX", 30, 2, 30, 1, 208.0),
    Sketcher.Constraint("DistanceY", 3, 2, 3, 1, 61.95),
    Sketcher.Constraint("DistanceY", 18, 1, 18, 2, 28.568411),
    Sketcher.Constraint("DistanceY", 24, 1, 24, 2, 7.069129),
    Sketcher.Constraint("DistanceY", 6, 3, -1, 1, 194.8183),
    Sketcher.Constraint("DistanceY", -1, 1, 27, 3, 127.4817),
    Sketcher.Constraint("DistanceY", 41, 3, -1, 1, 190.6025),
    Sketcher.Constraint("DistanceY", 46, 3, -1, 1, 45.4288),
    Sketcher.Constraint("DistanceY", -1, 1, 68, 3, 30.5682),
    Sketcher.Constraint("DistanceY", 70, 3, -1, 1, 12.2183),
    Sketcher.Constraint("DistanceY", -1, 1, 71, 3, 130.2757),
    Sketcher.Constraint("DistanceY", 42, 2, -1, 1, 145.5683),
    Sketcher.Constraint("DistanceY", 48, 2, -1, 1, 24.9183),
    Sketcher.Constraint("DistanceY", -1, 1, 72, 2, 83.0317),
    Sketcher.Constraint("Distance", 16, 3.291141),
    Sketcher.Constraint("DistanceX", -1, 1, 16, 2, 12.86464),
    Sketcher.Constraint("DistanceX", -1, 1, 41, 3, 31.352896),
    Sketcher.Constraint("DistanceX", -1, 1, 46, 3, 25.918696),
    Sketcher.Constraint("DistanceX", -1, 1, 47, 3, 5.918696),
    Sketcher.Constraint("DistanceX", 56, 3, -1, 1, 125.581304),
    Sketcher.Constraint("DistanceX", 57, 3, -1, 1, 289.525304),
    Sketcher.Constraint("DistanceX", 66, 3, -1, 1, 257.081304),
    Sketcher.Constraint("DistanceX", 67, 3, -1, 1, 277.081304),
    Sketcher.Constraint("DistanceX", 42, 2, -1, 1, 220.831304),
])
pad1 = body.newObject("PartDesign::Pad", "Pad")
pad1.Profile = sketch1
pad1.Length = Q("0.19 in")
pad1.Midplane = True

sketch2 = body.newObject("Sketcher::SketchObject", "Sketch001")
sketch2.AttachmentSupport = (doc.getObject("XY_Plane"), [""])
sketch2.MapMode = "FlatFace"
sketch2.AttachmentOffset = App.Placement(V(0, 0, 0.095 * 25.4), App.Rotation())
sketch2.addGeometry([
    Part.LineSegment(V(-272.081304, -33.4288, 0), V(-272.081304, -57.4288, 0)),
    Part.LineSegment(V(-272.081304, -57.4288, 0), V(-262.081304, -57.4288, 0)),
    Part.LineSegment(V(-262.081304, -57.4288, 0), V(-262.081304, -33.4288, 0)),
    Part.LineSegment(V(-262.081304, -33.4288, 0), V(-272.081304, -33.4288, 0)),
    Part.LineSegment(V(-272.081304, 42.5712, 0), V(-272.081304, 18.5712, 0)),
    Part.LineSegment(V(-272.081304, 18.5712, 0), V(-262.081304, 18.5712, 0)),
    Part.LineSegment(V(-262.081304, 18.5712, 0), V(-262.081304, 42.5712, 0)),
    Part.LineSegment(V(-262.081304, 42.5712, 0), V(-272.081304, 42.5712, 0)),
    Part.LineSegment(V(10.918696, 42.5712, 0), V(10.918696, 18.5712, 0)),
    Part.LineSegment(V(10.918696, 18.5712, 0), V(20.918696, 18.5712, 0)),
    Part.LineSegment(V(20.918696, 18.5712, 0), V(20.918696, 42.5712, 0)),
    Part.LineSegment(V(20.918696, 42.5712, 0), V(10.918696, 42.5712, 0)),
    Part.LineSegment(V(10.918696, -33.4288, 0), V(10.918696, -57.4288, 0)),
    Part.LineSegment(V(10.918696, -57.4288, 0), V(20.918696, -57.4288, 0)),
    Part.LineSegment(V(20.918696, -57.4288, 0), V(20.918696, -33.4288, 0)),
    Part.LineSegment(V(20.918696, -33.4288, 0), V(10.918696, -33.4288, 0)),
], False)
sketch2.addConstraint([
    Sketcher.Constraint("Coincident", 0, 2, 1, 1),
    Sketcher.Constraint("Coincident", 1, 2, 2, 1),
    Sketcher.Constraint("Coincident", 2, 2, 3, 1),
    Sketcher.Constraint("Coincident", 3, 2, 0, 1),
    Sketcher.Constraint("Coincident", 4, 2, 5, 1),
    Sketcher.Constraint("Coincident", 5, 2, 6, 1),
    Sketcher.Constraint("Coincident", 6, 2, 7, 1),
    Sketcher.Constraint("Coincident", 7, 2, 4, 1),
    Sketcher.Constraint("Coincident", 8, 2, 9, 1),
    Sketcher.Constraint("Coincident", 9, 2, 10, 1),
    Sketcher.Constraint("Coincident", 10, 2, 11, 1),
    Sketcher.Constraint("Coincident", 11, 2, 8, 1),
    Sketcher.Constraint("Coincident", 12, 2, 13, 1),
    Sketcher.Constraint("Coincident", 13, 2, 14, 1),
    Sketcher.Constraint("Coincident", 14, 2, 15, 1),
    Sketcher.Constraint("Coincident", 15, 2, 12, 1),
    Sketcher.Constraint("Vertical", 0),
    Sketcher.Constraint("Horizontal", 1),
    Sketcher.Constraint("Vertical", 2),
    Sketcher.Constraint("Horizontal", 3),
    Sketcher.Constraint("Vertical", 4),
    Sketcher.Constraint("Horizontal", 5),
    Sketcher.Constraint("Vertical", 6),
    Sketcher.Constraint("Horizontal", 7),
    Sketcher.Constraint("Vertical", 8),
    Sketcher.Constraint("Horizontal", 9),
    Sketcher.Constraint("Vertical", 10),
    Sketcher.Constraint("Horizontal", 11),
    Sketcher.Constraint("Vertical", 12),
    Sketcher.Constraint("Horizontal", 13),
    Sketcher.Constraint("Vertical", 14),
    Sketcher.Constraint("Horizontal", 15),
    Sketcher.Constraint("Horizontal", 5, 2, 8, 2),
    Sketcher.Constraint("Horizontal", 7, 2, 10, 2),
    Sketcher.Constraint("Horizontal", 1, 2, 12, 2),
    Sketcher.Constraint("Horizontal", 3, 2, 14, 2),
    Sketcher.Constraint("Vertical", 3, 2, 4, 2),
    Sketcher.Constraint("Vertical", 2, 2, 5, 2),
    Sketcher.Constraint("Vertical", 11, 2, 12, 2),
    Sketcher.Constraint("Vertical", 10, 2, 13, 2),
    Sketcher.Constraint("Equal", 7, 9),
    Sketcher.Constraint("Equal", 2, 4),
    Sketcher.Constraint("DistanceX", 1, 1, 1, 2, 10.0),
    Sketcher.Constraint("DistanceY", 0, 2, 0, 1, 24.0),
    Sketcher.Constraint("DistanceY", 0, 2, -1, 1, 57.4288),
    Sketcher.Constraint("DistanceY", -1, 1, 4, 2, 18.5712),
    Sketcher.Constraint("DistanceX", 5, 2, 8, 2, 273.0),
    Sketcher.Constraint("DistanceX", 0, 2, -1, 1, 272.081304),
])
pocket1 = body.newObject("PartDesign::Pocket", "Pocket")
pocket1.Profile = sketch2
pocket1.Length = 10

doc.recompute()
